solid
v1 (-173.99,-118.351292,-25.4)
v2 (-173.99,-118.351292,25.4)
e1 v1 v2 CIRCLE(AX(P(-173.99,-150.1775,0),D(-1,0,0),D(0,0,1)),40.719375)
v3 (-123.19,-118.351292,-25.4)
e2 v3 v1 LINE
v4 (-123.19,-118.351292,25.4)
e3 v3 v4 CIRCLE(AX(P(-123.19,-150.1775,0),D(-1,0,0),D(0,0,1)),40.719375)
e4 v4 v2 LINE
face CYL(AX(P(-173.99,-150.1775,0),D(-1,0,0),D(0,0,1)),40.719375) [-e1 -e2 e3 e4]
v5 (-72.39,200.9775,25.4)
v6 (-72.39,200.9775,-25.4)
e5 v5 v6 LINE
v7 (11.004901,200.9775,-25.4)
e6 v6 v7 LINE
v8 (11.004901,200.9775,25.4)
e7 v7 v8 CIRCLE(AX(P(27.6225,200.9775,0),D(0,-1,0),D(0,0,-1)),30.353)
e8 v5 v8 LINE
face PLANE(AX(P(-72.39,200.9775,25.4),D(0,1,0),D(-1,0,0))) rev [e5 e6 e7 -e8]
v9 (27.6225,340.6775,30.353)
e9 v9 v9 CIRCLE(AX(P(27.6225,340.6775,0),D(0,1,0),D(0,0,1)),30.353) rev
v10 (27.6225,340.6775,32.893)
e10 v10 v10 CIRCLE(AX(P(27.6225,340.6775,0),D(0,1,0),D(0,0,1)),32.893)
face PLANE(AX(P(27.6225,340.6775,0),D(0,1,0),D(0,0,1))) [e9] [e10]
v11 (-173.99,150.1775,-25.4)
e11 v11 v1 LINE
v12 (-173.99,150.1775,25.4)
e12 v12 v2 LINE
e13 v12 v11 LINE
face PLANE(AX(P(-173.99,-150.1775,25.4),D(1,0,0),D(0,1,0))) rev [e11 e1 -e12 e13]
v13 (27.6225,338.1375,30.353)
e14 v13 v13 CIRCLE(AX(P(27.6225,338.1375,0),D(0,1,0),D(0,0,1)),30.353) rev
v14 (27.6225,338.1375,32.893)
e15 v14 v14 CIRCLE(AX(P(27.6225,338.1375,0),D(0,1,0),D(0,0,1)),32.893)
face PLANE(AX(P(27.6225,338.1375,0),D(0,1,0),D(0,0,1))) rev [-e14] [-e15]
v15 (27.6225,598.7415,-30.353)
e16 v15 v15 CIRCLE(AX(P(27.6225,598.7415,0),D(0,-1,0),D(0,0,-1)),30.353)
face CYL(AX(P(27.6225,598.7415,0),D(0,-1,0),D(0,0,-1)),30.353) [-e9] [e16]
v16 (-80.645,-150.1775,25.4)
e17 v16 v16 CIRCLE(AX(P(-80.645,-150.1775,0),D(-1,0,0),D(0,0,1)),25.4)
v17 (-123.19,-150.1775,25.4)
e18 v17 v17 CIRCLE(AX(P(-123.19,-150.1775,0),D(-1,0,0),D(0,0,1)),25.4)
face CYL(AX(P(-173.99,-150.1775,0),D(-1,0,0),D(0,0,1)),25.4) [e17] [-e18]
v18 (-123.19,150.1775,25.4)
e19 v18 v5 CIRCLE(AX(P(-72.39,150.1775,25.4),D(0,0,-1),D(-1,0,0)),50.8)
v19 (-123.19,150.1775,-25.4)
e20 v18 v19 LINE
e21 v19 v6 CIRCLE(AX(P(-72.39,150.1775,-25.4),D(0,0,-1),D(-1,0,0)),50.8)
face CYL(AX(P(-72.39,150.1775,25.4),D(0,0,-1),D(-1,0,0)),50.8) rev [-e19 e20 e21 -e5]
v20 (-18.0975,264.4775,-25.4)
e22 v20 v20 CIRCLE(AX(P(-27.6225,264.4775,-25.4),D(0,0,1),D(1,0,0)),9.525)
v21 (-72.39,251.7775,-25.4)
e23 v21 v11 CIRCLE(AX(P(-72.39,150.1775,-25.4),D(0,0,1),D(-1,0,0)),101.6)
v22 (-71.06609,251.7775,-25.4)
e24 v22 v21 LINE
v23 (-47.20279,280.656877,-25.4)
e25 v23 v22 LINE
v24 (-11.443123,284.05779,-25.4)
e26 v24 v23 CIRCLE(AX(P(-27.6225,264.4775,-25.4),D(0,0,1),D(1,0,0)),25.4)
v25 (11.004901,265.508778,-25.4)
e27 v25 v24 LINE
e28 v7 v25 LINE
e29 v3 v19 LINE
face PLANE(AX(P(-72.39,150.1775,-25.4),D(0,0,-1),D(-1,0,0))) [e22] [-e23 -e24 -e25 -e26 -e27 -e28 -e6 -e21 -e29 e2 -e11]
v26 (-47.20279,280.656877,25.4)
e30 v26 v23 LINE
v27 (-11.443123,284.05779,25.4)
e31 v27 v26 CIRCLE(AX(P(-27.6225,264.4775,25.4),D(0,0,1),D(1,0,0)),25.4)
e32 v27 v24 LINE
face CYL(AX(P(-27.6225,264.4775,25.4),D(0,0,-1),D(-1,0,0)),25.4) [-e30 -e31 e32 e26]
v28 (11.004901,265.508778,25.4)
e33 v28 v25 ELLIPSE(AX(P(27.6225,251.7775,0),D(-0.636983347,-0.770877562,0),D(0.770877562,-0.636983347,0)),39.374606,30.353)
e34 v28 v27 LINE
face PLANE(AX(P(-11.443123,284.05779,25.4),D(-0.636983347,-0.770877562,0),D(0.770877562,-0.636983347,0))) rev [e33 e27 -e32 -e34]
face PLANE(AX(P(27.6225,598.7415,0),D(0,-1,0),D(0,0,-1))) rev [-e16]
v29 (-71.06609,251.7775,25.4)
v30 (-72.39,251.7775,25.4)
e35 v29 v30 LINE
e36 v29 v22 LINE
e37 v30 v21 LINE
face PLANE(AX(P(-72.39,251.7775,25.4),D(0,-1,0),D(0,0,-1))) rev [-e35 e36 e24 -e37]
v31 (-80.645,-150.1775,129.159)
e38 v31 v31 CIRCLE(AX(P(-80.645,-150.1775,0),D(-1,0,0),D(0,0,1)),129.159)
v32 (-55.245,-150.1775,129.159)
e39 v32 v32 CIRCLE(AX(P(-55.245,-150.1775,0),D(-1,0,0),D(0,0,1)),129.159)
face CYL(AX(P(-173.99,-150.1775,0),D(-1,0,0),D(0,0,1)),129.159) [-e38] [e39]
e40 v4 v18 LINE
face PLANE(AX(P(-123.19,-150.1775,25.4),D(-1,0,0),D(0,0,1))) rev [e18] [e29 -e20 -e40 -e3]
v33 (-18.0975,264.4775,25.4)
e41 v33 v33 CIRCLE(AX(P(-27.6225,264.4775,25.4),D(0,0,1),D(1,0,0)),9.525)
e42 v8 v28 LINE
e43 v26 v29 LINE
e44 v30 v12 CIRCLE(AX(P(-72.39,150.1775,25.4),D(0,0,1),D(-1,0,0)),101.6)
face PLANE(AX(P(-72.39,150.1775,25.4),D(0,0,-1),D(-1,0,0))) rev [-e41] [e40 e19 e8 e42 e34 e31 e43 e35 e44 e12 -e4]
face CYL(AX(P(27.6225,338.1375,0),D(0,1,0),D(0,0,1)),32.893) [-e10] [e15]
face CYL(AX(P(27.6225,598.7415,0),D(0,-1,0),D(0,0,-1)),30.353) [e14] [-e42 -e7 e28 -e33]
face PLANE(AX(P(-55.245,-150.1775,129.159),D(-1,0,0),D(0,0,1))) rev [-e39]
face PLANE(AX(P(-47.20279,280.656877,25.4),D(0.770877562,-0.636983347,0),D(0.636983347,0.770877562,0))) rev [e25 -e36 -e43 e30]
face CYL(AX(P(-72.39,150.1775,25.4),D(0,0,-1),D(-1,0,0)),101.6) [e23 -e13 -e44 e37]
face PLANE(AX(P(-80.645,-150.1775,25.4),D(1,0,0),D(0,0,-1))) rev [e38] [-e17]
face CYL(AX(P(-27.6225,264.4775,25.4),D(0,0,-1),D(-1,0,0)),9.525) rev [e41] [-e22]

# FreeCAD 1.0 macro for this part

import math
import FreeCAD as App
import Part
import Sketcher

V = App.Vector
Q = App.Units.Quantity


def add_polygon(sketch, points):
    """Adds a closed chain of lines whose ends are joined by coincident constraints."""
    first, n = sketch.GeometryCount, len(points)
    for a, b in zip(points, points[1:] + points[:1]):
        sketch.addGeometry(Part.LineSegment(App.Vector(*a, 0), App.Vector(*b, 0)), False)
    for i in range(n):
        sketch.addConstraint(Sketcher.Constraint("Coincident", first + i, 2, first + (i + 1) % n, 1))

doc = App.newDocument("Part")
body = doc.addObject("PartDesign::Body", "Body")

# Sketch on XY plane
sketch1 = body.newObject("Sketcher::SketchObject", "Sketch")
sketch1.AttachmentSupport = (doc.getObject("XY_Plane"), [""])
sketch1.MapMode = "FlatFace"
sketch1.addGeometry(Part.LineSegment(V(-123.2, -150.2, 0), V(-123.2, 150.2, 0)), False)
sketch1.addGeometry(Part.ArcOfCircle(Part.Circle(V(-72.4, 150.2, 0), V(0, 0, 1), 50.8), math.radians(90), math.radians(180)), False)
sketch1.addGeometry(Part.LineSegment(V(-72.4, 201, 0), V(27.6, 201, 0)), False)
sketch1.addGeometry(Part.LineSegment(V(27.6, 201, 0), V(27.6, 251.8, 0)), False)
sketch1.addGeometry(Part.LineSegment(V(27.6, 251.8, 0), V(-11.4, 284.1, 0)), False)
sketch1.addGeometry(Part.ArcOfCircle(Part.Circle(V(-27.6, 264.5, 0), V(0, 0, 1), 25.4), math.radians(50), math.radians(140)), False)
sketch1.addGeometry(Part.LineSegment(V(-47.2, 280.7, 0), V(-71.1, 251.8, 0)), False)
sketch1.addGeometry(Part.LineSegment(V(-71.1, 251.8, 0), V(-72.4, 251.8, 0)), False)
sketch1.addGeometry(Part.ArcOfCircle(Part.Circle(V(-72.4, 150.2, 0), V(0, 0, 1), 101.6), math.radians(90), math.radians(180)), False)
sketch1.addGeometry(Part.LineSegment(V(-174, 150.2, 0), V(-174, -150.2, 0)), False)
sketch1.addGeometry(Part.LineSegment(V(-174, -150.2, 0), V(-123.2, -150.2, 0)), False)
sketch1.addGeometry(Part.Circle(V(-27.6, 264.5, 0), V(0, 0, 1), 9.5), False)
sketch1.addConstraint(Sketcher.Constraint("Tangent", 0, 2, 1, 2))
sketch1.addConstraint(Sketcher.Constraint("Tangent", 1, 1, 2, 1))
sketch1.addConstraint(Sketcher.Constraint("Coincident", 2, 2, 3, 1))
sketch1.addConstraint(Sketcher.Constraint("Coincident", 3, 2, 4, 1))
sketch1.addConstraint(Sketcher.Constraint("Tangent", 4, 2, 5, 1))
sketch1.addConstraint(Sketcher.Constraint("Tangent", 5, 2, 6, 1))
sketch1.addConstraint(Sketcher.Constraint("Coincident", 6, 2, 7, 1))
sketch1.addConstraint(Sketcher.Constraint("Tangent", 7, 2, 8, 1))
sketch1.addConstraint(Sketcher.Constraint("Tangent", 8, 2, 9, 1))
sketch1.addConstraint(Sketcher.Constraint("Coincident", 9, 2, 10, 1))
sketch1.addConstraint(Sketcher.Constraint("Coincident", 10, 2, 0, 1))
sketch1.addConstraint(Sketcher.Constraint("Vertical", 0))
sketch1.addConstraint(Sketcher.Constraint("Horizontal", 2))
sketch1.addConstraint(Sketcher.Constraint("Vertical", 3))
sketch1.addConstraint(Sketcher.Constraint("Horizontal", 7))
sketch1.addConstraint(Sketcher.Constraint("Vertical", 9))
sketch1.addConstraint(Sketcher.Constraint("Horizontal", 10))
sketch1.addConstraint(Sketcher.Constraint("Coincident", 8, 3, 1, 3))
sketch1.addConstraint(Sketcher.Constraint("Coincident", 11, 3, 5, 3))
sketch1.addConstraint(Sketcher.Constraint("Perpendicular", 4, 6))
sketch1.addConstraint(Sketcher.Constraint("Horizontal", 3, 2, 6, 2))
sketch1.addConstraint(Sketcher.Constraint("Radius", 1, Q("2 in")))
sketch1.addConstraint(Sketcher.Constraint("Radius", 5, Q("1 in")))
sketch1.addConstraint(Sketcher.Constraint("Radius", 8, Q("4 in")))
sketch1.addConstraint(Sketcher.Constraint("Diameter", 11, Q("0.75 in")))
sketch1.addConstraint(Sketcher.Constraint("DistanceY", 1, 3, 5, 3, Q("4.5 in")))
sketch1.addConstraint(Sketcher.Constraint("DistanceX", 2, 1, 2, 2, Q("3.9375 in")))
sketch1.addConstraint(Sketcher.Constraint("DistanceY", 0, 1, 0, 2, Q("11.825 in")))
sketch1.addConstraint(Sketcher.Constraint("DistanceX", 1, 3, -1, 1, Q("2.85 in")))
sketch1.addConstraint(Sketcher.Constraint("DistanceX", 5, 3, 2, 2, Q("2.175 in")))
sketch1.addConstraint(Sketcher.Constraint("DistanceY", -1, 1, 1, 3, Q("5.9125 in")))
pad1 = body.newObject("PartDesign::Pad", "Pad")
pad1.Profile = sketch1
pad1.Length = Q("2 in")
pad1.Midplane = True

# Sketch on XZ plane
sketch2 = body.newObject("Sketcher::SketchObject", "Sketch001")
sketch2.AttachmentSupport = (doc.getObject("XZ_Plane"), [""])
sketch2.MapMode = "FlatFace"
sketch2.AttachmentOffset = App.Placement(V(0, 0, 5.9125 * 25.4), App.Rotation())
add_polygon(sketch2, [(-174, 0), (-55, 0), (-55, 129), (-81, 129), (-81, 25), (-123, 25), (-123, 41), (-174, 41)])  # lines 0-7
sketch2.addConstraint(Sketcher.Constraint("Horizontal", 0))
sketch2.addConstraint(Sketcher.Constraint("Vertical", 1))
sketch2.addConstraint(Sketcher.Constraint("Horizontal", 2))
sketch2.addConstraint(Sketcher.Constraint("Vertical", 3))
sketch2.addConstraint(Sketcher.Constraint("Horizontal", 4))
sketch2.addConstraint(Sketcher.Constraint("Vertical", 5))
sketch2.addConstraint(Sketcher.Constraint("Horizontal", 6))
sketch2.addConstraint(Sketcher.Constraint("Vertical", 7))
sketch2.addConstraint(Sketcher.Constraint("PointOnObject", 0, 2, -1))
sketch2.addConstraint(Sketcher.Constraint("DistanceX", 2, 2, 2, 1, Q("1 in")))
sketch2.addConstraint(Sketcher.Constraint("DistanceX", 6, 2, 6, 1, Q("2 in")))
sketch2.addConstraint(Sketcher.Constraint("DistanceY", -1, 1, 3, 2, Q("1 in")))
sketch2.addConstraint(Sketcher.Constraint("DistanceX", 0, 1, 0, 2, Q("4.675 in")))
sketch2.addConstraint(Sketcher.Constraint("DistanceY", 1, 1, 1, 2, Q("5.085 in")))
sketch2.addConstraint(Sketcher.Constraint("DistanceX", 4, 2, -1, 1, Q("4.85 in")))
sketch2.addConstraint(Sketcher.Constraint("DistanceY", 5, 1, 5, 2, Q("15.319375 mm")))
revolution = body.newObject("PartDesign::Revolution", "Revolution")
revolution.Profile = sketch2
revolution.ReferenceAxis = (sketch2, ["H_Axis"])
revolution.Angle = 360

# Sketch on XZ plane
sketch3 = body.newObject("Sketcher::SketchObject", "Sketch002")
sketch3.AttachmentSupport = (doc.getObject("XZ_Plane"), [""])
sketch3.MapMode = "FlatFace"
sketch3.AttachmentOffset = App.Placement(V(0, 0, -7.9125 * 25.4), App.Rotation())
sketch3.addGeometry(Part.Circle(V(28, 0, 0), V(0, 0, 1), 30), False)
sketch3.addConstraint(Sketcher.Constraint("PointOnObject", 0, 3, -1))
sketch3.addConstraint(Sketcher.Constraint("Diameter", 0, Q("2.39 in")))
sketch3.addConstraint(Sketcher.Constraint("DistanceX", -1, 1, 0, 3, Q("1.0875 in")))
pad2 = body.newObject("PartDesign::Pad", "Pad001")
pad2.Profile = sketch3
pad2.Length = Q("15.66 in")
pad2.Reversed = True

# Sketch on XZ plane
sketch4 = body.newObject("Sketcher::SketchObject", "Sketch003")
sketch4.AttachmentSupport = (doc.getObject("XZ_Plane"), [""])
sketch4.MapMode = "FlatFace"
sketch4.AttachmentOffset = App.Placement(V(0, 0, -13.4125 * 25.4), App.Rotation())
sketch4.addGeometry(Part.Circle(V(28, 0, 0), V(0, 0, 1), 33), False)
sketch4.addConstraint(Sketcher.Constraint("PointOnObject", 0, 3, -1))
sketch4.addConstraint(Sketcher.Constraint("Diameter", 0, Q("2.59 in")))
sketch4.addConstraint(Sketcher.Constraint("DistanceX", -1, 1, 0, 3, Q("1.0875 in")))
pad3 = body.newObject("PartDesign::Pad", "Pad002")
pad3.Profile = sketch4
pad3.Length = Q("0.1 in")

doc.recompute()
